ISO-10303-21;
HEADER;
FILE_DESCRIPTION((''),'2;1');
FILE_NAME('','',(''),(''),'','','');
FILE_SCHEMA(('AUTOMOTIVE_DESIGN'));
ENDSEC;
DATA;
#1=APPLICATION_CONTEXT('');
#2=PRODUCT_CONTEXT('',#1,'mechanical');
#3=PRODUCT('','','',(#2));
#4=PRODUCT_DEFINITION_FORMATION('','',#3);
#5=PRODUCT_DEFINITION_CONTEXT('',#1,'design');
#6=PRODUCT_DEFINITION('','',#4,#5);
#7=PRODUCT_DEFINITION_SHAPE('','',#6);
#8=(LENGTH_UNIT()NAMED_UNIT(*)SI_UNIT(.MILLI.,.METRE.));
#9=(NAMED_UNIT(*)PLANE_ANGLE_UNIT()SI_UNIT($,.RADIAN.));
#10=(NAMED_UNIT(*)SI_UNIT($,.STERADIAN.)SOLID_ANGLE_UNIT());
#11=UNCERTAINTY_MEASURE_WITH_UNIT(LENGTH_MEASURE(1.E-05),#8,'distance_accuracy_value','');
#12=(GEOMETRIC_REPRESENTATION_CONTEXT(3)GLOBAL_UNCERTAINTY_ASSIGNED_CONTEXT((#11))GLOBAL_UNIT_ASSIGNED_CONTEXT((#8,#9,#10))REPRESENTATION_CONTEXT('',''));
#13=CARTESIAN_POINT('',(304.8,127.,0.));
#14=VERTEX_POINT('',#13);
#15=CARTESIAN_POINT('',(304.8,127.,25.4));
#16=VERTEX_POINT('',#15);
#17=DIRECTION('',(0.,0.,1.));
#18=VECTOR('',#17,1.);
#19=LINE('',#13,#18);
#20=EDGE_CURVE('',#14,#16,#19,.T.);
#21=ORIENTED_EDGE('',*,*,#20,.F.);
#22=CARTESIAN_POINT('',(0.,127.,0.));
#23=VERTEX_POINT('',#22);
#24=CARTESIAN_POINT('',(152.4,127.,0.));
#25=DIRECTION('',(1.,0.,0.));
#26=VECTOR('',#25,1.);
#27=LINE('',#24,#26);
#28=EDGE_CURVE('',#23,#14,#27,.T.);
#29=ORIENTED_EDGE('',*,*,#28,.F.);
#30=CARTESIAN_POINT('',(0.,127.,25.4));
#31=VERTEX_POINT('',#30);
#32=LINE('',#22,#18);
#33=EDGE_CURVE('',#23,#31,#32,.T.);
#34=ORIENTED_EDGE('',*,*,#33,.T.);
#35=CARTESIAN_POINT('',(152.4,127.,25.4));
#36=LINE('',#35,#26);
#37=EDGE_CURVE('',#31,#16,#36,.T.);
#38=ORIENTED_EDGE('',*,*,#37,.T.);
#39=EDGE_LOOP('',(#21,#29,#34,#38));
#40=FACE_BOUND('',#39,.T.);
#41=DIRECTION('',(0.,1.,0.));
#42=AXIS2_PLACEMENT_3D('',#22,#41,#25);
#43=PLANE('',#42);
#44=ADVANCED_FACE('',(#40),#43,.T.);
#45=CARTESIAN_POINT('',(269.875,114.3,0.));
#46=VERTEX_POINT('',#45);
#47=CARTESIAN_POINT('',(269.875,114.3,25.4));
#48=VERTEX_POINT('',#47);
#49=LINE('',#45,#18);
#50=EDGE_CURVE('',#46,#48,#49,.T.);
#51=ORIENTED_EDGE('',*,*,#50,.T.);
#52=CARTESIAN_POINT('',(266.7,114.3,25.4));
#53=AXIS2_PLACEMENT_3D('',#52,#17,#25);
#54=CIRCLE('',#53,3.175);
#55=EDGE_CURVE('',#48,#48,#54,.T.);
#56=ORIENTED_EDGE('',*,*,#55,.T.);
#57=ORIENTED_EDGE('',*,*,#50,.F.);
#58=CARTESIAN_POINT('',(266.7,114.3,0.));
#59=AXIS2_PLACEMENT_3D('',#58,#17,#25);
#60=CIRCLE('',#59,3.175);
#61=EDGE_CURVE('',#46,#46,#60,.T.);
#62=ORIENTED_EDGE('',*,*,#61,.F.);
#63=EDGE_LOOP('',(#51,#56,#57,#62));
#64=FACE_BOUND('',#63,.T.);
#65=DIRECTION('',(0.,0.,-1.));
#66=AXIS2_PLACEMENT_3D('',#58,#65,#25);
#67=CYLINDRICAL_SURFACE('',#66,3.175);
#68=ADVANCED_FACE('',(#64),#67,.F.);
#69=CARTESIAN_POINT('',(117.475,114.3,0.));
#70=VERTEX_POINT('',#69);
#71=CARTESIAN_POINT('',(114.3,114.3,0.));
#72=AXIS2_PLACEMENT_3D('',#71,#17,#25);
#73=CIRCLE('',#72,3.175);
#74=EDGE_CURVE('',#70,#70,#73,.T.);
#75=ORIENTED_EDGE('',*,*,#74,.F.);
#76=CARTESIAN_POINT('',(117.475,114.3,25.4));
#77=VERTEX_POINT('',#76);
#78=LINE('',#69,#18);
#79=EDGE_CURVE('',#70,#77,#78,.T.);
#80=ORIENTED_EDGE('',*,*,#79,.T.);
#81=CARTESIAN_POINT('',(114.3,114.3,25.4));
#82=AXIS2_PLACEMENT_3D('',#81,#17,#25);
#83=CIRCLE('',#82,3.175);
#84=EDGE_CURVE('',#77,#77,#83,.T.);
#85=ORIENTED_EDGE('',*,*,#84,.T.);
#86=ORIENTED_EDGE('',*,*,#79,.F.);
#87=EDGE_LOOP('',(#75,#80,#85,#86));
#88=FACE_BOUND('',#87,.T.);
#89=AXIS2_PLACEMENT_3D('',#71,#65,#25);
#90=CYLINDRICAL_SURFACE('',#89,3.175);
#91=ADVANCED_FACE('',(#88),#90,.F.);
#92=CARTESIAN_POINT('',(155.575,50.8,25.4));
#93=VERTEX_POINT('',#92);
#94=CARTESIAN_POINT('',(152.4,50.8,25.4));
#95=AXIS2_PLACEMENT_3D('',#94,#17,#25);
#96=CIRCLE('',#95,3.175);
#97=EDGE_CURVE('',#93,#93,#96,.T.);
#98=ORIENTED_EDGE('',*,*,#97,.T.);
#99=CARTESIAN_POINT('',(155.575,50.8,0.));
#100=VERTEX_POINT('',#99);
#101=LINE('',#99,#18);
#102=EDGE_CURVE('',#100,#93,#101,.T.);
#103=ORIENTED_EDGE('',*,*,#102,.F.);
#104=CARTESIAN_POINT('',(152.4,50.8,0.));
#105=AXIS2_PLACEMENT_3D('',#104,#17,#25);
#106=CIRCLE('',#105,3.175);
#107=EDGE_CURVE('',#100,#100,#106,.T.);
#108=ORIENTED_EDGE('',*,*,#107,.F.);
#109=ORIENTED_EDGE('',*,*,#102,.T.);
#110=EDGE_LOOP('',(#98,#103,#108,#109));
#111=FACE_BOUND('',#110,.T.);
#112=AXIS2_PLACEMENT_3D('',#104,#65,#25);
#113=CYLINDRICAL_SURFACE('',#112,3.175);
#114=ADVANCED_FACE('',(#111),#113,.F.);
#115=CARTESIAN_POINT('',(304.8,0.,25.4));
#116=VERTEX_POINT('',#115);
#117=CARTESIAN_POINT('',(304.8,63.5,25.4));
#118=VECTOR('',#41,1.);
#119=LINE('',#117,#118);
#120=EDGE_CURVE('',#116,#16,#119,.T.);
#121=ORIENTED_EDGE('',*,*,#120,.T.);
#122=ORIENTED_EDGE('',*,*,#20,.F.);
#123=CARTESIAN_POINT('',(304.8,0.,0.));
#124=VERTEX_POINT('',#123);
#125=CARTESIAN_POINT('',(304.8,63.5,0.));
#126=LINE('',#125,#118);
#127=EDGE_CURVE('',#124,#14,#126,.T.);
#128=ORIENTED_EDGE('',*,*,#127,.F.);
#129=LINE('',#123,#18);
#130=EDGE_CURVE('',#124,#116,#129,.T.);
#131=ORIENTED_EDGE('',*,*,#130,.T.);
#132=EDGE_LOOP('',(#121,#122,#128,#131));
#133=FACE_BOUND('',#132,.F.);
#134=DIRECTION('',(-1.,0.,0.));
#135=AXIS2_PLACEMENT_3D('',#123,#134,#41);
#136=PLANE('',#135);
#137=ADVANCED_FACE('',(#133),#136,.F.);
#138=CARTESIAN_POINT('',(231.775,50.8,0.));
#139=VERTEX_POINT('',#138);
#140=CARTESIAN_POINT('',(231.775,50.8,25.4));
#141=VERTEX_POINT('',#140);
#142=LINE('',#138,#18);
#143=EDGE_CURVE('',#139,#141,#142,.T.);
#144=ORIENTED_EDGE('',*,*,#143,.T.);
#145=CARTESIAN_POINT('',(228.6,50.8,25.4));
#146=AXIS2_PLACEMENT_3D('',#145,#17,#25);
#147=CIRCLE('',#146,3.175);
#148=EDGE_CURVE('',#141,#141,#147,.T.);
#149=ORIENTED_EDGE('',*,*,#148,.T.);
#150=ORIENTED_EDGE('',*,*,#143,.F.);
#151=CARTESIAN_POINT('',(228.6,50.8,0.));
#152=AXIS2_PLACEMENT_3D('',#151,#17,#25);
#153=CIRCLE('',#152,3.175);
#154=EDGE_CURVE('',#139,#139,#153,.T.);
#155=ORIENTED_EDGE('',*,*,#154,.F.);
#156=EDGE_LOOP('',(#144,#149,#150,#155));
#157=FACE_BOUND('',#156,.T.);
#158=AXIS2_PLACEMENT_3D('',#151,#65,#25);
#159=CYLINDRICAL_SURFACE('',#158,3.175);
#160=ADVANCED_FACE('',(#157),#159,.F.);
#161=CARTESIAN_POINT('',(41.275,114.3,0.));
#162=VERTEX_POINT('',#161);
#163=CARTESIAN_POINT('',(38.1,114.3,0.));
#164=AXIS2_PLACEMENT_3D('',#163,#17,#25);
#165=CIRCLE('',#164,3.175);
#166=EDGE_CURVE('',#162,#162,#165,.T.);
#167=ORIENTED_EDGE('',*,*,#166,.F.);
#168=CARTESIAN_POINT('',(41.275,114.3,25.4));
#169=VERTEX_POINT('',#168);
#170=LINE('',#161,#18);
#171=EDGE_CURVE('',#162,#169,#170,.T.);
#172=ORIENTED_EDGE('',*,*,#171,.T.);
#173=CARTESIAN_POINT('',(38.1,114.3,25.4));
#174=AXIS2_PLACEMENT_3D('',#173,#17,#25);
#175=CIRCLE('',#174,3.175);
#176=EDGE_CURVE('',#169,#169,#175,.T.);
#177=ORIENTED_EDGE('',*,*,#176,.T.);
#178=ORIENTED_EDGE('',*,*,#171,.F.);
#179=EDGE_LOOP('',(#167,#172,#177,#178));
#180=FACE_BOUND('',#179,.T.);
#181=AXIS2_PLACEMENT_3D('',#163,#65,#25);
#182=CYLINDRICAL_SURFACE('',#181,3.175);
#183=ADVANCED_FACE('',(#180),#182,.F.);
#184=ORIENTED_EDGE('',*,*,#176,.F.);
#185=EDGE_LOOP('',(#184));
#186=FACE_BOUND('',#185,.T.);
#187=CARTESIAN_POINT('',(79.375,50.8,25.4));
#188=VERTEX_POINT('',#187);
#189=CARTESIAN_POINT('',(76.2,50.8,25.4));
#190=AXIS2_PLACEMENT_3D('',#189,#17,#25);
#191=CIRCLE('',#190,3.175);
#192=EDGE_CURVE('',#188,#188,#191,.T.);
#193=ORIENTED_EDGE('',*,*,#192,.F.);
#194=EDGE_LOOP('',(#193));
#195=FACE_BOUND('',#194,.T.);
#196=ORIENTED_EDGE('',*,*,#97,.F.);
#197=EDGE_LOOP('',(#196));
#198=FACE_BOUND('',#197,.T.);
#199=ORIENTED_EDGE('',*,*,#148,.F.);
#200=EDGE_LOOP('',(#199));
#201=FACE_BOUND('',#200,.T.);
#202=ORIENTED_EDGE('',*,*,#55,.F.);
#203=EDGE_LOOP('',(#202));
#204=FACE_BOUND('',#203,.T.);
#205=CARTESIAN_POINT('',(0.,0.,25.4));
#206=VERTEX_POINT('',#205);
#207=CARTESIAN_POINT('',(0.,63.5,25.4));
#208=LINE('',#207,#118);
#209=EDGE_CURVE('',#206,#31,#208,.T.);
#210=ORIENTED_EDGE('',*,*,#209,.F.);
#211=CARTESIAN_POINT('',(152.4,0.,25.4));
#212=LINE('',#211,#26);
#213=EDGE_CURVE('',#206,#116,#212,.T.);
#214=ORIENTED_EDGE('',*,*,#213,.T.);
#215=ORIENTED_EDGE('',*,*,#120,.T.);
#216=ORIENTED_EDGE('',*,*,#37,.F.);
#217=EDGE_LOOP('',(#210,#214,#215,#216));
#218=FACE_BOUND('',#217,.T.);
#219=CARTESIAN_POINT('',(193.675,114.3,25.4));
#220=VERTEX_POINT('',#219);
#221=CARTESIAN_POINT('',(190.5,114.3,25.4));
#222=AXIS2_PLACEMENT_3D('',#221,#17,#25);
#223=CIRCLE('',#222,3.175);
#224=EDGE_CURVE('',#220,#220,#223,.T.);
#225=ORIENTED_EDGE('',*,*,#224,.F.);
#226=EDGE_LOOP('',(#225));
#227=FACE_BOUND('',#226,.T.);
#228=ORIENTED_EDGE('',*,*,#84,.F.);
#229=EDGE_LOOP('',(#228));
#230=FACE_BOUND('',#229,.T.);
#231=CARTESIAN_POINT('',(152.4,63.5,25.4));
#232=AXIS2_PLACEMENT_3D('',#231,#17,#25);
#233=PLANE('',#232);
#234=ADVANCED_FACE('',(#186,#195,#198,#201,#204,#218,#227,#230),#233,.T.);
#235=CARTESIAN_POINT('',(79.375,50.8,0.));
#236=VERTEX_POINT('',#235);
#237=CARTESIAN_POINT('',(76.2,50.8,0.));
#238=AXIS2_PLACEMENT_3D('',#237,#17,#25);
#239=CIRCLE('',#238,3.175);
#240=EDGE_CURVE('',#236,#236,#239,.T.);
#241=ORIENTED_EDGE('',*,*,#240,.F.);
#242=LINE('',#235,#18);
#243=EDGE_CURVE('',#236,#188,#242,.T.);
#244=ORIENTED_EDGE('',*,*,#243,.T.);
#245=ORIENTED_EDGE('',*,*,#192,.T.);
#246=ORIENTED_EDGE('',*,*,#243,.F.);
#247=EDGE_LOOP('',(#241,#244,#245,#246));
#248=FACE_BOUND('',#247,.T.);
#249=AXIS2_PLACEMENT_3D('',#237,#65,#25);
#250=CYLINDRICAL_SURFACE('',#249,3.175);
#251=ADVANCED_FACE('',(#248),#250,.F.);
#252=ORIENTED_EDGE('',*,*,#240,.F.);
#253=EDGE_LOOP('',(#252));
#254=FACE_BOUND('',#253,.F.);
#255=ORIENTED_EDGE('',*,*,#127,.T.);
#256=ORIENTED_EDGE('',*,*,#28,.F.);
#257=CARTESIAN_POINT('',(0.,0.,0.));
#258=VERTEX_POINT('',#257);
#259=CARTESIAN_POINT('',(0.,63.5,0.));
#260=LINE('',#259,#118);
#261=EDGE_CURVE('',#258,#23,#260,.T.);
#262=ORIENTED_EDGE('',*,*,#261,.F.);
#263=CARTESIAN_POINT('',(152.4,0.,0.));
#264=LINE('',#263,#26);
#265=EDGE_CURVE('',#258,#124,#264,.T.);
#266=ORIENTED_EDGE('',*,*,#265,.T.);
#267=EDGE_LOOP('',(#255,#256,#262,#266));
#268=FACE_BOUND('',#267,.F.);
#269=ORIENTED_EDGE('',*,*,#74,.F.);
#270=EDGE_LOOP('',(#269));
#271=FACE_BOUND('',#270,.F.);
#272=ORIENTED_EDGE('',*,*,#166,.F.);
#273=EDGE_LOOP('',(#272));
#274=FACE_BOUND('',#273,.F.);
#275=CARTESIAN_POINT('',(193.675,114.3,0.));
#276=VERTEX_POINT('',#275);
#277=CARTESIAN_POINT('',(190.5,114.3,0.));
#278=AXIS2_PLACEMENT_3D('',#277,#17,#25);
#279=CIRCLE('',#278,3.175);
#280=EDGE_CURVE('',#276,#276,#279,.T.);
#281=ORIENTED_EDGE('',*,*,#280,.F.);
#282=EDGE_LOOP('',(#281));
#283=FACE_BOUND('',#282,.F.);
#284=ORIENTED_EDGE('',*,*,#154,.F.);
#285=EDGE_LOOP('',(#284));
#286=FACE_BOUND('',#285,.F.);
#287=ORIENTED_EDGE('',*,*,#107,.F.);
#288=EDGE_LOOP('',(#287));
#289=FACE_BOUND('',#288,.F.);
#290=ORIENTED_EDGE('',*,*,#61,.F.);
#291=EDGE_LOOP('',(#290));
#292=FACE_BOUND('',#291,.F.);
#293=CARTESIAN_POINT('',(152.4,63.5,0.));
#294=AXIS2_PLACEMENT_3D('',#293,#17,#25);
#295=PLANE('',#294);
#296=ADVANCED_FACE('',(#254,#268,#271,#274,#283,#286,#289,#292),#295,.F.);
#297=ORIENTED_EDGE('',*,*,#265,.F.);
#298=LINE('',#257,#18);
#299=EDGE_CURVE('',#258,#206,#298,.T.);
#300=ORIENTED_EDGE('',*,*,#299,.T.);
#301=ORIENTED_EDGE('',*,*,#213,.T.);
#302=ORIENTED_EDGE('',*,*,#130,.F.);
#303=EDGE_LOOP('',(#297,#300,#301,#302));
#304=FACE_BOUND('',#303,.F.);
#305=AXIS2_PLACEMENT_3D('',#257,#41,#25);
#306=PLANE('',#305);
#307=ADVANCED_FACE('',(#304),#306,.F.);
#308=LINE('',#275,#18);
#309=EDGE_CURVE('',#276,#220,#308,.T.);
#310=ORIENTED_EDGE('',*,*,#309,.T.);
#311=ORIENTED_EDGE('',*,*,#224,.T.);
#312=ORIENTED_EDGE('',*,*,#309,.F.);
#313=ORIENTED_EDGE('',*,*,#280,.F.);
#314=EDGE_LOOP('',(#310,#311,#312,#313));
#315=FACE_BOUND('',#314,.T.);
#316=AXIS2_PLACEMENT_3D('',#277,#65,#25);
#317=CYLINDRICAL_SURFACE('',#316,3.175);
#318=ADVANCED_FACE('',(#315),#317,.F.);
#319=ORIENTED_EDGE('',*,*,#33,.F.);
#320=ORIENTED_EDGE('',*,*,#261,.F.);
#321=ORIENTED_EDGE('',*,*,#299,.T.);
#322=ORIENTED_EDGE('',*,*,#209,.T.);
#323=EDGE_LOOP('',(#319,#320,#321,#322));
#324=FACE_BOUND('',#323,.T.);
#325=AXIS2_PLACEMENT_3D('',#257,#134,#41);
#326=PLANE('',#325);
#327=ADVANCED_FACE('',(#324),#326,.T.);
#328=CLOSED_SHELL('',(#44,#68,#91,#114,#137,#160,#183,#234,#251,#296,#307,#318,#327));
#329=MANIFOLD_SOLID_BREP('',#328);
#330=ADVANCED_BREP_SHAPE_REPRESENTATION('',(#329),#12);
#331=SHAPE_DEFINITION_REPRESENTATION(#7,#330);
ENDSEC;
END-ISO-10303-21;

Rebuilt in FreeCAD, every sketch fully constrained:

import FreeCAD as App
import Part
import Sketcher
Q = App.Units.Quantity

doc = App.newDocument("Part")
body = doc.addObject("PartDesign::Body", "Body")

# Sketch on XY plane
sketch1 = doc.addObject("Sketcher::SketchObject", "Sketch")
body.addObject(sketch1)
sketch1.AttachmentSupport = (doc.XY_Plane, [""])
sketch1.MapMode = "FlatFace"
sketch1.addGeometry([
    Part.LineSegment(App.Vector(0, 127, 0), App.Vector(0, 0, 0)),  # 0
    Part.LineSegment(App.Vector(0, 0, 0), App.Vector(304.8, 0, 0)),  # 1
    Part.LineSegment(App.Vector(304.8, 0, 0), App.Vector(304.8, 127, 0)),  # 2
    Part.LineSegment(App.Vector(304.8, 127, 0), App.Vector(0, 127, 0)),  # 3
    Part.Circle(App.Vector(76.2, 50.8, 0), App.Vector(0, 0, 1), 3.175),  # 4
    Part.Circle(App.Vector(152.4, 50.8, 0), App.Vector(0, 0, 1), 3.175),  # 5
    Part.Circle(App.Vector(228.6, 50.8, 0), App.Vector(0, 0, 1), 3.175),  # 6
    Part.Circle(App.Vector(38.1, 114.3, 0), App.Vector(0, 0, 1), 3.175),  # 7
    Part.Circle(App.Vector(114.3, 114.3, 0), App.Vector(0, 0, 1), 3.175),  # 8
    Part.Circle(App.Vector(190.5, 114.3, 0), App.Vector(0, 0, 1), 3.175),  # 9
    Part.Circle(App.Vector(266.7, 114.3, 0), App.Vector(0, 0, 1), 3.175),  # 10
], False)
sketch1.addConstraint([
    Sketcher.Constraint("Coincident", 0, 2, 1, 1),
    Sketcher.Constraint("Coincident", 1, 2, 2, 1),
    Sketcher.Constraint("Coincident", 2, 2, 3, 1),
    Sketcher.Constraint("Coincident", 3, 2, 0, 1),
    Sketcher.Constraint("Vertical", 0),
    Sketcher.Constraint("Horizontal", 1),
    Sketcher.Constraint("Vertical", 2),
    Sketcher.Constraint("Horizontal", 3),
    Sketcher.Constraint("Coincident", 0, 2, -1, 1),
    Sketcher.Constraint("Equal", 4, 5),
    Sketcher.Constraint("Equal", 5, 6),
    Sketcher.Constraint("Equal", 6, 7),
    Sketcher.Constraint("Equal", 7, 8),
    Sketcher.Constraint("Equal", 8, 9),
    Sketcher.Constraint("Equal", 9, 10),
    Sketcher.Constraint("Horizontal", 4, 3, 5, 3),
    Sketcher.Constraint("Horizontal", 5, 3, 6, 3),
    Sketcher.Constraint("Horizontal", 7, 3, 8, 3),
    Sketcher.Constraint("Horizontal", 8, 3, 9, 3),
    Sketcher.Constraint("Horizontal", 9, 3, 10, 3),
    Sketcher.Constraint("Diameter", 4, Q("0.25 in")),
    Sketcher.Constraint("DistanceX", 1, 1, 1, 2, Q("12 in")),
    Sketcher.Constraint("DistanceY", 0, 2, 0, 1, Q("5 in")),
    Sketcher.Constraint("DistanceX", -1, 1, 4, 3, Q("3 in")),
    Sketcher.Constraint("DistanceY", -1, 1, 4, 3, Q("2 in")),
    Sketcher.Constraint("DistanceX", -1, 1, 5, 3, Q("6 in")),
    Sketcher.Constraint("DistanceX", -1, 1, 6, 3, Q("9 in")),
    Sketcher.Constraint("DistanceX", 7, 3, 8, 3, Q("3 in")),
    Sketcher.Constraint("DistanceX", 8, 3, 9, 3, Q("3 in")),
    Sketcher.Constraint("DistanceX", 9, 3, 10, 3, Q("3 in")),
    Sketcher.Constraint("DistanceX", -1, 1, 7, 3, Q("1.5 in")),
    Sketcher.Constraint("DistanceY", -1, 1, 7, 3, Q("4.5 in")),
])
pad1 = doc.addObject("PartDesign::Pad", "Pad")
body.addObject(pad1)
pad1.Profile = sketch1
pad1.Length = Q("1 in")

doc.recompute()
